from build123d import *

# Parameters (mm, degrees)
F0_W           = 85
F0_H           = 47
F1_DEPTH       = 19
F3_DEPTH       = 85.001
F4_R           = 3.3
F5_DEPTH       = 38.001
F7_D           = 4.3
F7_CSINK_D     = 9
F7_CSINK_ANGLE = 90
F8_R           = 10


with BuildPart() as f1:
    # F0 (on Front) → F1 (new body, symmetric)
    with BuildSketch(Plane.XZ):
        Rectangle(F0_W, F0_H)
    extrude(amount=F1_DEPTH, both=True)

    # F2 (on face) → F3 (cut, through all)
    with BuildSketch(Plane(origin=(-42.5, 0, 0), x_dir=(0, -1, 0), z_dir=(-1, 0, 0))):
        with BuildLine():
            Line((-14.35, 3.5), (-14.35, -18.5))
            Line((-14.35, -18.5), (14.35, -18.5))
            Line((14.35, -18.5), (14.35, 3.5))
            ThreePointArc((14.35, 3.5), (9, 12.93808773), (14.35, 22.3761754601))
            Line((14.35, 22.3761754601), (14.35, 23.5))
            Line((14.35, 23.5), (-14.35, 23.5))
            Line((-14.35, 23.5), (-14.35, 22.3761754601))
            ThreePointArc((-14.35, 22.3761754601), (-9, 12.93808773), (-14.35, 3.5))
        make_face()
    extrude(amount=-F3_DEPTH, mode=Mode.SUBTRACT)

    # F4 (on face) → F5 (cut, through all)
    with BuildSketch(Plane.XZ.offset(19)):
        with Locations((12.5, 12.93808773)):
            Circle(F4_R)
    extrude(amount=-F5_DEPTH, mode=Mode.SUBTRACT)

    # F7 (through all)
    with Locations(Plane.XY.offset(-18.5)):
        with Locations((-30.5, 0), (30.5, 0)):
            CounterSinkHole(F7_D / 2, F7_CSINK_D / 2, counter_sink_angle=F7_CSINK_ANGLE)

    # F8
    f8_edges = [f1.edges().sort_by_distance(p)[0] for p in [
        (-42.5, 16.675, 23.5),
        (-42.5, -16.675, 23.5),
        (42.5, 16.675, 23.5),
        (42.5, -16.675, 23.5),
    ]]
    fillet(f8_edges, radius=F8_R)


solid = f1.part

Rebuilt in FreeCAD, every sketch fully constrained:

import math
import FreeCAD as App
import Part
import Sketcher


def edges_at(feature, points):
    """Names of the edges that pass closest to the given points."""
    edges = feature.Shape.Edges
    near = lambda p: min(range(len(edges)), key=lambda i: edges[i].distToShape(Part.Vertex(*p))[0])
    return sorted({f"Edge{near(p) + 1}" for p in points})


def add_polygon(sketch, points):
    """Adds a closed chain of lines whose ends are joined by coincident constraints."""
    first, n = sketch.GeometryCount, len(points)
    for a, b in zip(points, points[1:] + points[:1]):
        sketch.addGeometry(Part.LineSegment(App.Vector(*a, 0), App.Vector(*b, 0)), False)
    for i in range(n):
        sketch.addConstraint(Sketcher.Constraint("Coincident", first + i, 2, first + (i + 1) % n, 1))

doc = App.newDocument("Part")
body = doc.addObject("PartDesign::Body", "Body")

# Sketch on XZ plane
sketch1 = body.newObject("Sketcher::SketchObject", "Sketch")
sketch1.AttachmentSupport = (doc.getObject("XZ_Plane"), [""])
sketch1.MapMode = "FlatFace"
add_polygon(sketch1, [(-42, 24), (-42, -24), (42, -24), (42, 24)])  # lines 0-3
sketch1.addConstraint([
    Sketcher.Constraint("Vertical", 0),
    Sketcher.Constraint("Horizontal", 1),
    Sketcher.Constraint("Vertical", 2),
    Sketcher.Constraint("Horizontal", 3),
    Sketcher.Constraint("Symmetric", 0, 2, 2, 2, -1, 1),
    Sketcher.Constraint("DistanceX", 1, 1, 1, 2, 85.0),
    Sketcher.Constraint("DistanceY", 0, 2, 0, 1, 47.0),
])
pad1 = body.newObject("PartDesign::Pad", "Pad")
pad1.Profile = sketch1
pad1.Length = 38
pad1.Midplane = True

# Sketch on YZ plane
sketch2 = body.newObject("Sketcher::SketchObject", "Sketch001")
sketch2.AttachmentSupport = (doc.getObject("YZ_Plane"), [""])
sketch2.MapMode = "FlatFace"
sketch2.AttachmentOffset = App.Placement(App.Vector(0, 0, -42.5), App.Rotation())
sketch2.addGeometry([
    Part.LineSegment(App.Vector(14.3, 3.5, 0), App.Vector(14.3, -18.5, 0)),  # 0
    Part.LineSegment(App.Vector(14.3, -18.5, 0), App.Vector(-14.3, -18.5, 0)),  # 1
    Part.LineSegment(App.Vector(-14.3, -18.5, 0), App.Vector(-14.3, 3.5, 0)),  # 2
    Part.ArcOfCircle(Part.Circle(App.Vector(-20, 12.9, 0), App.Vector(0, 0, 1), 11), math.radians(-59), math.radians(59)),  # 3
    Part.LineSegment(App.Vector(-14.3, 22.4, 0), App.Vector(-14.3, 23.5, 0)),  # 4
    Part.LineSegment(App.Vector(-14.3, 23.5, 0), App.Vector(14.3, 23.5, 0)),  # 5
    Part.LineSegment(App.Vector(14.3, 23.5, 0), App.Vector(14.3, 22.4, 0)),  # 6
    Part.ArcOfCircle(Part.Circle(App.Vector(20, 12.9, 0), App.Vector(0, 0, 1), 11), math.radians(121), math.radians(239)),  # 7
], False)
sketch2.addConstraint([
    Sketcher.Constraint("Coincident", 0, 2, 1, 1),
    Sketcher.Constraint("Coincident", 1, 2, 2, 1),
    Sketcher.Constraint("Coincident", 2, 2, 3, 1),
    Sketcher.Constraint("Coincident", 3, 2, 4, 1),
    Sketcher.Constraint("Coincident", 4, 2, 5, 1),
    Sketcher.Constraint("Coincident", 5, 2, 6, 1),
    Sketcher.Constraint("Coincident", 6, 2, 7, 1),
    Sketcher.Constraint("Coincident", 7, 2, 0, 1),
    Sketcher.Constraint("Vertical", 0),
    Sketcher.Constraint("Horizontal", 1),
    Sketcher.Constraint("Vertical", 2),
    Sketcher.Constraint("Vertical", 4),
    Sketcher.Constraint("Horizontal", 5),
    Sketcher.Constraint("Vertical", 6),
    Sketcher.Constraint("Equal", 3, 7),
    Sketcher.Constraint("Symmetric", 3, 3, 7, 3, -2),
    Sketcher.Constraint("Horizontal", 3, 2, 6, 2),
    Sketcher.Constraint("Horizontal", 2, 2, 7, 2),
    Sketcher.Constraint("Vertical", 2, 2, 3, 2),
    Sketcher.Constraint("Radius", 3, 11.0),
    Sketcher.Constraint("DistanceY", 0, 2, 0, 1, 22.0),
    Sketcher.Constraint("DistanceX", 1, 2, 1, 1, 28.7),
    Sketcher.Constraint("DistanceX", 3, 3, -1, 1, 20.0),
    Sketcher.Constraint("DistanceY", 2, 2, 4, 2, 20.0),
    Sketcher.Constraint("DistanceY", 0, 2, -1, 1, 18.5),
])
pocket1 = body.newObject("PartDesign::Pocket", "Pocket")
pocket1.Profile = sketch2
pocket1.Type = "ThroughAll"
pocket1.Reversed = True

# Sketch on XZ plane
sketch3 = body.newObject("Sketcher::SketchObject", "Sketch002")
sketch3.AttachmentSupport = (doc.getObject("XZ_Plane"), [""])
sketch3.MapMode = "FlatFace"
sketch3.AttachmentOffset = App.Placement(App.Vector(0, 0, 19), App.Rotation())
sketch3.addGeometry(Part.Circle(App.Vector(12.5, 12.9, 0), App.Vector(0, 0, 1), 3.3), False)
sketch3.addConstraint([
    Sketcher.Constraint("Diameter", 0, 6.6),
    Sketcher.Constraint("DistanceX", -1, 1, 0, 3, 12.5),
    Sketcher.Constraint("DistanceY", -1, 1, 0, 3, 12.938088),
])
pocket2 = body.newObject("PartDesign::Pocket", "Pocket001")
pocket2.Profile = sketch3
pocket2.Type = "ThroughAll"

# Sketch on XY plane
sketch4 = body.newObject("Sketcher::SketchObject", "Sketch003")
sketch4.AttachmentSupport = (doc.getObject("XY_Plane"), [""])
sketch4.MapMode = "FlatFace"
sketch4.AttachmentOffset = App.Placement(App.Vector(0, 0, -18.5), App.Rotation())
sketch4.addGeometry([
    Part.Circle(App.Vector(-30.5, 0, 0), App.Vector(0, 0, 1), 2.1),
    Part.Circle(App.Vector(30.5, 0, 0), App.Vector(0, 0, 1), 2.1),
], False)
sketch4.addConstraint([
    Sketcher.Constraint("Equal", 0, 1),
    Sketcher.Constraint("Symmetric", 0, 3, 1, 3, -1, 1),
    Sketcher.Constraint("PointOnObject", 0, 3, -1),
    Sketcher.Constraint("Diameter", 0, 4.3),
    Sketcher.Constraint("DistanceX", 0, 3, 1, 3, 61.0),
])
doc.recompute()
hole = body.newObject("PartDesign::Hole", "Hole")
hole.Profile = sketch4
hole.ThreadType = "None"
hole.Diameter = 4.3
hole.DepthType = "ThroughAll"
hole.HoleCutType = "Countersink"
hole.HoleCutDiameter = 9
hole.HoleCutCountersinkAngle = 90
doc.recompute()

fillet = body.newObject("PartDesign::Fillet", "Fillet")
fillet.Base = (hole, edges_at(hole, [
    (-42.5, 16.675, 23.5),
    (-42.5, -16.675, 23.5),
    (42.5, 16.675, 23.5),
    (42.5, -16.675, 23.5),
]))
fillet.Radius = 10

doc.recompute()
